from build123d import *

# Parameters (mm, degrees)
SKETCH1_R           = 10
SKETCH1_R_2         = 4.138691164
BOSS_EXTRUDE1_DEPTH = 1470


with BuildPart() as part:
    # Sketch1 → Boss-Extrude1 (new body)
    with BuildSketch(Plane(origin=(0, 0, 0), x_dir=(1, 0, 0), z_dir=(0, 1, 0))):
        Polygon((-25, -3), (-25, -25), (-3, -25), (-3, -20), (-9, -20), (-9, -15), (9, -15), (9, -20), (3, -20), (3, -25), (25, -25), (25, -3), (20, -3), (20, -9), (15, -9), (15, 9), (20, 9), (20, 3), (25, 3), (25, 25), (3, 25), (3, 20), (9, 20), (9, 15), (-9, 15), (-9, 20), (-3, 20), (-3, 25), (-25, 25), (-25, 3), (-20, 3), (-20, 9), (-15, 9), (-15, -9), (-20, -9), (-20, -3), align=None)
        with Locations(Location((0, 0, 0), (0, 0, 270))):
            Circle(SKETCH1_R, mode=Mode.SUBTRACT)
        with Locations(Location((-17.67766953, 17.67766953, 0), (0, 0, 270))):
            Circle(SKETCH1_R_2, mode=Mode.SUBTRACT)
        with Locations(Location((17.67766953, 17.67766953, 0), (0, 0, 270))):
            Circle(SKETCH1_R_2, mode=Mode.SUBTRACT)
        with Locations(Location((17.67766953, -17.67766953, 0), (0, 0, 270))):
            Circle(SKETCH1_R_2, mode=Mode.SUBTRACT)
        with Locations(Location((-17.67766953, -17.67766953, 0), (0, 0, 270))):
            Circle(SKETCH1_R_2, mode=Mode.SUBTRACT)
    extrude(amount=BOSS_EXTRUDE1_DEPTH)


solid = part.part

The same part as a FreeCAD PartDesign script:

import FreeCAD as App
import Part
import Sketcher


def add_polygon(sketch, points):
    """Adds a closed chain of lines whose ends are joined by coincident constraints."""
    first, n = sketch.GeometryCount, len(points)
    for a, b in zip(points, points[1:] + points[:1]):
        sketch.addGeometry(Part.LineSegment(App.Vector(*a, 0), App.Vector(*b, 0)), False)
    for i in range(n):
        sketch.addConstraint(Sketcher.Constraint("Coincident", first + i, 2, first + (i + 1) % n, 1))

doc = App.newDocument("Part")
body = doc.addObject("PartDesign::Body", "Body")

# Sketch on XZ plane
sketch1 = body.newObject("Sketcher::SketchObject", "Sketch")
sketch1.AttachmentSupport = (doc.getObject("XZ_Plane"), [""])
sketch1.MapMode = "FlatFace"
add_polygon(sketch1, [(-25, 3), (-25, 25), (-3, 25), (-3, 20), (-9, 20), (-9, 15), (9, 15), (9, 20), (3, 20), (3, 25), (25, 25), (25, 3), (20, 3), (20, 9), (15, 9), (15, -9), (20, -9), (20, -3), (25, -3), (25, -25), (3, -25), (3, -20), (9, -20), (9, -15), (-9, -15), (-9, -20), (-3, -20), (-3, -25), (-25, -25), (-25, -3), (-20, -3), (-20, -9), (-15, -9), (-15, 9), (-20, 9), (-20, 3)])  # lines 0-35
sketch1.addGeometry(Part.Circle(App.Vector(-17.7, 17.7, 0), App.Vector(0, 0, 1), 4.1), False)  # 36
sketch1.addGeometry(Part.Circle(App.Vector(17.7, 17.7, 0), App.Vector(0, 0, 1), 4.1), False)  # 37
sketch1.addGeometry(Part.Circle(App.Vector(-17.7, -17.7, 0), App.Vector(0, 0, 1), 4.1), False)  # 38
sketch1.addGeometry(Part.Circle(App.Vector(0, 0, 0), App.Vector(0, 0, 1), 10), False)  # 39
sketch1.addGeometry(Part.Circle(App.Vector(17.7, -17.7, 0), App.Vector(0, 0, 1), 4.1), False)  # 40
sketch1.addConstraint([
    Sketcher.Constraint("Vertical", 0),
    Sketcher.Constraint("Horizontal", 1),
    Sketcher.Constraint("Vertical", 2),
    Sketcher.Constraint("Horizontal", 3),
    Sketcher.Constraint("Vertical", 4),
    Sketcher.Constraint("Horizontal", 5),
    Sketcher.Constraint("Vertical", 6),
    Sketcher.Constraint("Horizontal", 7),
    Sketcher.Constraint("Vertical", 8),
    Sketcher.Constraint("Horizontal", 9),
    Sketcher.Constraint("Vertical", 10),
    Sketcher.Constraint("Horizontal", 11),
    Sketcher.Constraint("Vertical", 12),
    Sketcher.Constraint("Horizontal", 13),
    Sketcher.Constraint("Vertical", 14),
    Sketcher.Constraint("Horizontal", 15),
    Sketcher.Constraint("Vertical", 16),
    Sketcher.Constraint("Horizontal", 17),
    Sketcher.Constraint("Vertical", 18),
    Sketcher.Constraint("Horizontal", 19),
    Sketcher.Constraint("Vertical", 20),
    Sketcher.Constraint("Horizontal", 21),
    Sketcher.Constraint("Vertical", 22),
    Sketcher.Constraint("Horizontal", 23),
    Sketcher.Constraint("Vertical", 24),
    Sketcher.Constraint("Horizontal", 25),
    Sketcher.Constraint("Vertical", 26),
    Sketcher.Constraint("Horizontal", 27),
    Sketcher.Constraint("Vertical", 28),
    Sketcher.Constraint("Horizontal", 29),
    Sketcher.Constraint("Vertical", 30),
    Sketcher.Constraint("Horizontal", 31),
    Sketcher.Constraint("Vertical", 32),
    Sketcher.Constraint("Horizontal", 33),
    Sketcher.Constraint("Vertical", 34),
    Sketcher.Constraint("Horizontal", 35),
    Sketcher.Constraint("Coincident", 39, 3, -1, 1),
    Sketcher.Constraint("Equal", 36, 37),
    Sketcher.Constraint("Equal", 37, 38),
    Sketcher.Constraint("Equal", 38, 40),
    Sketcher.Constraint("Symmetric", 37, 3, 38, 3, -1, 1),
    Sketcher.Constraint("Symmetric", 36, 3, 40, 3, -1, 1),
    Sketcher.Constraint("Symmetric", 0, 2, 18, 2, -1, 1),
    Sketcher.Constraint("Symmetric", 2, 2, 20, 2, -1, 1),
    Sketcher.Constraint("Symmetric", 4, 2, 22, 2, -1, 1),
    Sketcher.Constraint("Symmetric", 6, 2, 24, 2, -1, 1),
    Sketcher.Constraint("Symmetric", 8, 2, 26, 2, -1, 1),
    Sketcher.Constraint("Symmetric", 10, 2, 28, 2, -1, 1),
    Sketcher.Constraint("Symmetric", 12, 2, 30, 2, -1, 1),
    Sketcher.Constraint("Symmetric", 14, 2, 32, 2, -1, 1),
    Sketcher.Constraint("Symmetric", 16, 2, 34, 2, -1, 1),
    Sketcher.Constraint("Symmetric", 36, 3, 37, 3, -2),
    Sketcher.Constraint("Symmetric", 3, 2, 6, 2, -2),
    Sketcher.Constraint("Symmetric", 1, 2, 8, 2, -2),
    Sketcher.Constraint("Symmetric", 17, 2, 28, 2, -2),
    Sketcher.Constraint("Symmetric", 15, 2, 30, 2, -2),
    Sketcher.Constraint("Equal", 11, 13),
    Sketcher.Constraint("Equal", 27, 0),
    Sketcher.Constraint("Equal", 35, 2),
    Sketcher.Constraint("Equal", 2, 4),
    Sketcher.Constraint("Equal", 25, 12),
    Sketcher.Constraint("Equal", 23, 14),
    Sketcher.Constraint("Diameter", 39, 20.0),
    Sketcher.Constraint("DistanceX", 1, 1, 1, 2, 22.0),
    Sketcher.Constraint("DistanceX", 3, 2, 3, 1, 6.0),
    Sketcher.Constraint("DistanceX", 5, 1, 5, 2, 18.0),
    Sketcher.Constraint("DistanceX", 11, 2, 11, 1, 5.0),
    Sketcher.Constraint("Diameter", 36, 8.277382),
    Sketcher.Constraint("DistanceX", 36, 3, -1, 1, 17.67767),
    Sketcher.Constraint("DistanceY", -1, 1, 36, 3, 17.67767),
])
pad1 = body.newObject("PartDesign::Pad", "Pad")
pad1.Profile = sketch1
pad1.Length = 1470
pad1.Reversed = True

doc.recompute()
